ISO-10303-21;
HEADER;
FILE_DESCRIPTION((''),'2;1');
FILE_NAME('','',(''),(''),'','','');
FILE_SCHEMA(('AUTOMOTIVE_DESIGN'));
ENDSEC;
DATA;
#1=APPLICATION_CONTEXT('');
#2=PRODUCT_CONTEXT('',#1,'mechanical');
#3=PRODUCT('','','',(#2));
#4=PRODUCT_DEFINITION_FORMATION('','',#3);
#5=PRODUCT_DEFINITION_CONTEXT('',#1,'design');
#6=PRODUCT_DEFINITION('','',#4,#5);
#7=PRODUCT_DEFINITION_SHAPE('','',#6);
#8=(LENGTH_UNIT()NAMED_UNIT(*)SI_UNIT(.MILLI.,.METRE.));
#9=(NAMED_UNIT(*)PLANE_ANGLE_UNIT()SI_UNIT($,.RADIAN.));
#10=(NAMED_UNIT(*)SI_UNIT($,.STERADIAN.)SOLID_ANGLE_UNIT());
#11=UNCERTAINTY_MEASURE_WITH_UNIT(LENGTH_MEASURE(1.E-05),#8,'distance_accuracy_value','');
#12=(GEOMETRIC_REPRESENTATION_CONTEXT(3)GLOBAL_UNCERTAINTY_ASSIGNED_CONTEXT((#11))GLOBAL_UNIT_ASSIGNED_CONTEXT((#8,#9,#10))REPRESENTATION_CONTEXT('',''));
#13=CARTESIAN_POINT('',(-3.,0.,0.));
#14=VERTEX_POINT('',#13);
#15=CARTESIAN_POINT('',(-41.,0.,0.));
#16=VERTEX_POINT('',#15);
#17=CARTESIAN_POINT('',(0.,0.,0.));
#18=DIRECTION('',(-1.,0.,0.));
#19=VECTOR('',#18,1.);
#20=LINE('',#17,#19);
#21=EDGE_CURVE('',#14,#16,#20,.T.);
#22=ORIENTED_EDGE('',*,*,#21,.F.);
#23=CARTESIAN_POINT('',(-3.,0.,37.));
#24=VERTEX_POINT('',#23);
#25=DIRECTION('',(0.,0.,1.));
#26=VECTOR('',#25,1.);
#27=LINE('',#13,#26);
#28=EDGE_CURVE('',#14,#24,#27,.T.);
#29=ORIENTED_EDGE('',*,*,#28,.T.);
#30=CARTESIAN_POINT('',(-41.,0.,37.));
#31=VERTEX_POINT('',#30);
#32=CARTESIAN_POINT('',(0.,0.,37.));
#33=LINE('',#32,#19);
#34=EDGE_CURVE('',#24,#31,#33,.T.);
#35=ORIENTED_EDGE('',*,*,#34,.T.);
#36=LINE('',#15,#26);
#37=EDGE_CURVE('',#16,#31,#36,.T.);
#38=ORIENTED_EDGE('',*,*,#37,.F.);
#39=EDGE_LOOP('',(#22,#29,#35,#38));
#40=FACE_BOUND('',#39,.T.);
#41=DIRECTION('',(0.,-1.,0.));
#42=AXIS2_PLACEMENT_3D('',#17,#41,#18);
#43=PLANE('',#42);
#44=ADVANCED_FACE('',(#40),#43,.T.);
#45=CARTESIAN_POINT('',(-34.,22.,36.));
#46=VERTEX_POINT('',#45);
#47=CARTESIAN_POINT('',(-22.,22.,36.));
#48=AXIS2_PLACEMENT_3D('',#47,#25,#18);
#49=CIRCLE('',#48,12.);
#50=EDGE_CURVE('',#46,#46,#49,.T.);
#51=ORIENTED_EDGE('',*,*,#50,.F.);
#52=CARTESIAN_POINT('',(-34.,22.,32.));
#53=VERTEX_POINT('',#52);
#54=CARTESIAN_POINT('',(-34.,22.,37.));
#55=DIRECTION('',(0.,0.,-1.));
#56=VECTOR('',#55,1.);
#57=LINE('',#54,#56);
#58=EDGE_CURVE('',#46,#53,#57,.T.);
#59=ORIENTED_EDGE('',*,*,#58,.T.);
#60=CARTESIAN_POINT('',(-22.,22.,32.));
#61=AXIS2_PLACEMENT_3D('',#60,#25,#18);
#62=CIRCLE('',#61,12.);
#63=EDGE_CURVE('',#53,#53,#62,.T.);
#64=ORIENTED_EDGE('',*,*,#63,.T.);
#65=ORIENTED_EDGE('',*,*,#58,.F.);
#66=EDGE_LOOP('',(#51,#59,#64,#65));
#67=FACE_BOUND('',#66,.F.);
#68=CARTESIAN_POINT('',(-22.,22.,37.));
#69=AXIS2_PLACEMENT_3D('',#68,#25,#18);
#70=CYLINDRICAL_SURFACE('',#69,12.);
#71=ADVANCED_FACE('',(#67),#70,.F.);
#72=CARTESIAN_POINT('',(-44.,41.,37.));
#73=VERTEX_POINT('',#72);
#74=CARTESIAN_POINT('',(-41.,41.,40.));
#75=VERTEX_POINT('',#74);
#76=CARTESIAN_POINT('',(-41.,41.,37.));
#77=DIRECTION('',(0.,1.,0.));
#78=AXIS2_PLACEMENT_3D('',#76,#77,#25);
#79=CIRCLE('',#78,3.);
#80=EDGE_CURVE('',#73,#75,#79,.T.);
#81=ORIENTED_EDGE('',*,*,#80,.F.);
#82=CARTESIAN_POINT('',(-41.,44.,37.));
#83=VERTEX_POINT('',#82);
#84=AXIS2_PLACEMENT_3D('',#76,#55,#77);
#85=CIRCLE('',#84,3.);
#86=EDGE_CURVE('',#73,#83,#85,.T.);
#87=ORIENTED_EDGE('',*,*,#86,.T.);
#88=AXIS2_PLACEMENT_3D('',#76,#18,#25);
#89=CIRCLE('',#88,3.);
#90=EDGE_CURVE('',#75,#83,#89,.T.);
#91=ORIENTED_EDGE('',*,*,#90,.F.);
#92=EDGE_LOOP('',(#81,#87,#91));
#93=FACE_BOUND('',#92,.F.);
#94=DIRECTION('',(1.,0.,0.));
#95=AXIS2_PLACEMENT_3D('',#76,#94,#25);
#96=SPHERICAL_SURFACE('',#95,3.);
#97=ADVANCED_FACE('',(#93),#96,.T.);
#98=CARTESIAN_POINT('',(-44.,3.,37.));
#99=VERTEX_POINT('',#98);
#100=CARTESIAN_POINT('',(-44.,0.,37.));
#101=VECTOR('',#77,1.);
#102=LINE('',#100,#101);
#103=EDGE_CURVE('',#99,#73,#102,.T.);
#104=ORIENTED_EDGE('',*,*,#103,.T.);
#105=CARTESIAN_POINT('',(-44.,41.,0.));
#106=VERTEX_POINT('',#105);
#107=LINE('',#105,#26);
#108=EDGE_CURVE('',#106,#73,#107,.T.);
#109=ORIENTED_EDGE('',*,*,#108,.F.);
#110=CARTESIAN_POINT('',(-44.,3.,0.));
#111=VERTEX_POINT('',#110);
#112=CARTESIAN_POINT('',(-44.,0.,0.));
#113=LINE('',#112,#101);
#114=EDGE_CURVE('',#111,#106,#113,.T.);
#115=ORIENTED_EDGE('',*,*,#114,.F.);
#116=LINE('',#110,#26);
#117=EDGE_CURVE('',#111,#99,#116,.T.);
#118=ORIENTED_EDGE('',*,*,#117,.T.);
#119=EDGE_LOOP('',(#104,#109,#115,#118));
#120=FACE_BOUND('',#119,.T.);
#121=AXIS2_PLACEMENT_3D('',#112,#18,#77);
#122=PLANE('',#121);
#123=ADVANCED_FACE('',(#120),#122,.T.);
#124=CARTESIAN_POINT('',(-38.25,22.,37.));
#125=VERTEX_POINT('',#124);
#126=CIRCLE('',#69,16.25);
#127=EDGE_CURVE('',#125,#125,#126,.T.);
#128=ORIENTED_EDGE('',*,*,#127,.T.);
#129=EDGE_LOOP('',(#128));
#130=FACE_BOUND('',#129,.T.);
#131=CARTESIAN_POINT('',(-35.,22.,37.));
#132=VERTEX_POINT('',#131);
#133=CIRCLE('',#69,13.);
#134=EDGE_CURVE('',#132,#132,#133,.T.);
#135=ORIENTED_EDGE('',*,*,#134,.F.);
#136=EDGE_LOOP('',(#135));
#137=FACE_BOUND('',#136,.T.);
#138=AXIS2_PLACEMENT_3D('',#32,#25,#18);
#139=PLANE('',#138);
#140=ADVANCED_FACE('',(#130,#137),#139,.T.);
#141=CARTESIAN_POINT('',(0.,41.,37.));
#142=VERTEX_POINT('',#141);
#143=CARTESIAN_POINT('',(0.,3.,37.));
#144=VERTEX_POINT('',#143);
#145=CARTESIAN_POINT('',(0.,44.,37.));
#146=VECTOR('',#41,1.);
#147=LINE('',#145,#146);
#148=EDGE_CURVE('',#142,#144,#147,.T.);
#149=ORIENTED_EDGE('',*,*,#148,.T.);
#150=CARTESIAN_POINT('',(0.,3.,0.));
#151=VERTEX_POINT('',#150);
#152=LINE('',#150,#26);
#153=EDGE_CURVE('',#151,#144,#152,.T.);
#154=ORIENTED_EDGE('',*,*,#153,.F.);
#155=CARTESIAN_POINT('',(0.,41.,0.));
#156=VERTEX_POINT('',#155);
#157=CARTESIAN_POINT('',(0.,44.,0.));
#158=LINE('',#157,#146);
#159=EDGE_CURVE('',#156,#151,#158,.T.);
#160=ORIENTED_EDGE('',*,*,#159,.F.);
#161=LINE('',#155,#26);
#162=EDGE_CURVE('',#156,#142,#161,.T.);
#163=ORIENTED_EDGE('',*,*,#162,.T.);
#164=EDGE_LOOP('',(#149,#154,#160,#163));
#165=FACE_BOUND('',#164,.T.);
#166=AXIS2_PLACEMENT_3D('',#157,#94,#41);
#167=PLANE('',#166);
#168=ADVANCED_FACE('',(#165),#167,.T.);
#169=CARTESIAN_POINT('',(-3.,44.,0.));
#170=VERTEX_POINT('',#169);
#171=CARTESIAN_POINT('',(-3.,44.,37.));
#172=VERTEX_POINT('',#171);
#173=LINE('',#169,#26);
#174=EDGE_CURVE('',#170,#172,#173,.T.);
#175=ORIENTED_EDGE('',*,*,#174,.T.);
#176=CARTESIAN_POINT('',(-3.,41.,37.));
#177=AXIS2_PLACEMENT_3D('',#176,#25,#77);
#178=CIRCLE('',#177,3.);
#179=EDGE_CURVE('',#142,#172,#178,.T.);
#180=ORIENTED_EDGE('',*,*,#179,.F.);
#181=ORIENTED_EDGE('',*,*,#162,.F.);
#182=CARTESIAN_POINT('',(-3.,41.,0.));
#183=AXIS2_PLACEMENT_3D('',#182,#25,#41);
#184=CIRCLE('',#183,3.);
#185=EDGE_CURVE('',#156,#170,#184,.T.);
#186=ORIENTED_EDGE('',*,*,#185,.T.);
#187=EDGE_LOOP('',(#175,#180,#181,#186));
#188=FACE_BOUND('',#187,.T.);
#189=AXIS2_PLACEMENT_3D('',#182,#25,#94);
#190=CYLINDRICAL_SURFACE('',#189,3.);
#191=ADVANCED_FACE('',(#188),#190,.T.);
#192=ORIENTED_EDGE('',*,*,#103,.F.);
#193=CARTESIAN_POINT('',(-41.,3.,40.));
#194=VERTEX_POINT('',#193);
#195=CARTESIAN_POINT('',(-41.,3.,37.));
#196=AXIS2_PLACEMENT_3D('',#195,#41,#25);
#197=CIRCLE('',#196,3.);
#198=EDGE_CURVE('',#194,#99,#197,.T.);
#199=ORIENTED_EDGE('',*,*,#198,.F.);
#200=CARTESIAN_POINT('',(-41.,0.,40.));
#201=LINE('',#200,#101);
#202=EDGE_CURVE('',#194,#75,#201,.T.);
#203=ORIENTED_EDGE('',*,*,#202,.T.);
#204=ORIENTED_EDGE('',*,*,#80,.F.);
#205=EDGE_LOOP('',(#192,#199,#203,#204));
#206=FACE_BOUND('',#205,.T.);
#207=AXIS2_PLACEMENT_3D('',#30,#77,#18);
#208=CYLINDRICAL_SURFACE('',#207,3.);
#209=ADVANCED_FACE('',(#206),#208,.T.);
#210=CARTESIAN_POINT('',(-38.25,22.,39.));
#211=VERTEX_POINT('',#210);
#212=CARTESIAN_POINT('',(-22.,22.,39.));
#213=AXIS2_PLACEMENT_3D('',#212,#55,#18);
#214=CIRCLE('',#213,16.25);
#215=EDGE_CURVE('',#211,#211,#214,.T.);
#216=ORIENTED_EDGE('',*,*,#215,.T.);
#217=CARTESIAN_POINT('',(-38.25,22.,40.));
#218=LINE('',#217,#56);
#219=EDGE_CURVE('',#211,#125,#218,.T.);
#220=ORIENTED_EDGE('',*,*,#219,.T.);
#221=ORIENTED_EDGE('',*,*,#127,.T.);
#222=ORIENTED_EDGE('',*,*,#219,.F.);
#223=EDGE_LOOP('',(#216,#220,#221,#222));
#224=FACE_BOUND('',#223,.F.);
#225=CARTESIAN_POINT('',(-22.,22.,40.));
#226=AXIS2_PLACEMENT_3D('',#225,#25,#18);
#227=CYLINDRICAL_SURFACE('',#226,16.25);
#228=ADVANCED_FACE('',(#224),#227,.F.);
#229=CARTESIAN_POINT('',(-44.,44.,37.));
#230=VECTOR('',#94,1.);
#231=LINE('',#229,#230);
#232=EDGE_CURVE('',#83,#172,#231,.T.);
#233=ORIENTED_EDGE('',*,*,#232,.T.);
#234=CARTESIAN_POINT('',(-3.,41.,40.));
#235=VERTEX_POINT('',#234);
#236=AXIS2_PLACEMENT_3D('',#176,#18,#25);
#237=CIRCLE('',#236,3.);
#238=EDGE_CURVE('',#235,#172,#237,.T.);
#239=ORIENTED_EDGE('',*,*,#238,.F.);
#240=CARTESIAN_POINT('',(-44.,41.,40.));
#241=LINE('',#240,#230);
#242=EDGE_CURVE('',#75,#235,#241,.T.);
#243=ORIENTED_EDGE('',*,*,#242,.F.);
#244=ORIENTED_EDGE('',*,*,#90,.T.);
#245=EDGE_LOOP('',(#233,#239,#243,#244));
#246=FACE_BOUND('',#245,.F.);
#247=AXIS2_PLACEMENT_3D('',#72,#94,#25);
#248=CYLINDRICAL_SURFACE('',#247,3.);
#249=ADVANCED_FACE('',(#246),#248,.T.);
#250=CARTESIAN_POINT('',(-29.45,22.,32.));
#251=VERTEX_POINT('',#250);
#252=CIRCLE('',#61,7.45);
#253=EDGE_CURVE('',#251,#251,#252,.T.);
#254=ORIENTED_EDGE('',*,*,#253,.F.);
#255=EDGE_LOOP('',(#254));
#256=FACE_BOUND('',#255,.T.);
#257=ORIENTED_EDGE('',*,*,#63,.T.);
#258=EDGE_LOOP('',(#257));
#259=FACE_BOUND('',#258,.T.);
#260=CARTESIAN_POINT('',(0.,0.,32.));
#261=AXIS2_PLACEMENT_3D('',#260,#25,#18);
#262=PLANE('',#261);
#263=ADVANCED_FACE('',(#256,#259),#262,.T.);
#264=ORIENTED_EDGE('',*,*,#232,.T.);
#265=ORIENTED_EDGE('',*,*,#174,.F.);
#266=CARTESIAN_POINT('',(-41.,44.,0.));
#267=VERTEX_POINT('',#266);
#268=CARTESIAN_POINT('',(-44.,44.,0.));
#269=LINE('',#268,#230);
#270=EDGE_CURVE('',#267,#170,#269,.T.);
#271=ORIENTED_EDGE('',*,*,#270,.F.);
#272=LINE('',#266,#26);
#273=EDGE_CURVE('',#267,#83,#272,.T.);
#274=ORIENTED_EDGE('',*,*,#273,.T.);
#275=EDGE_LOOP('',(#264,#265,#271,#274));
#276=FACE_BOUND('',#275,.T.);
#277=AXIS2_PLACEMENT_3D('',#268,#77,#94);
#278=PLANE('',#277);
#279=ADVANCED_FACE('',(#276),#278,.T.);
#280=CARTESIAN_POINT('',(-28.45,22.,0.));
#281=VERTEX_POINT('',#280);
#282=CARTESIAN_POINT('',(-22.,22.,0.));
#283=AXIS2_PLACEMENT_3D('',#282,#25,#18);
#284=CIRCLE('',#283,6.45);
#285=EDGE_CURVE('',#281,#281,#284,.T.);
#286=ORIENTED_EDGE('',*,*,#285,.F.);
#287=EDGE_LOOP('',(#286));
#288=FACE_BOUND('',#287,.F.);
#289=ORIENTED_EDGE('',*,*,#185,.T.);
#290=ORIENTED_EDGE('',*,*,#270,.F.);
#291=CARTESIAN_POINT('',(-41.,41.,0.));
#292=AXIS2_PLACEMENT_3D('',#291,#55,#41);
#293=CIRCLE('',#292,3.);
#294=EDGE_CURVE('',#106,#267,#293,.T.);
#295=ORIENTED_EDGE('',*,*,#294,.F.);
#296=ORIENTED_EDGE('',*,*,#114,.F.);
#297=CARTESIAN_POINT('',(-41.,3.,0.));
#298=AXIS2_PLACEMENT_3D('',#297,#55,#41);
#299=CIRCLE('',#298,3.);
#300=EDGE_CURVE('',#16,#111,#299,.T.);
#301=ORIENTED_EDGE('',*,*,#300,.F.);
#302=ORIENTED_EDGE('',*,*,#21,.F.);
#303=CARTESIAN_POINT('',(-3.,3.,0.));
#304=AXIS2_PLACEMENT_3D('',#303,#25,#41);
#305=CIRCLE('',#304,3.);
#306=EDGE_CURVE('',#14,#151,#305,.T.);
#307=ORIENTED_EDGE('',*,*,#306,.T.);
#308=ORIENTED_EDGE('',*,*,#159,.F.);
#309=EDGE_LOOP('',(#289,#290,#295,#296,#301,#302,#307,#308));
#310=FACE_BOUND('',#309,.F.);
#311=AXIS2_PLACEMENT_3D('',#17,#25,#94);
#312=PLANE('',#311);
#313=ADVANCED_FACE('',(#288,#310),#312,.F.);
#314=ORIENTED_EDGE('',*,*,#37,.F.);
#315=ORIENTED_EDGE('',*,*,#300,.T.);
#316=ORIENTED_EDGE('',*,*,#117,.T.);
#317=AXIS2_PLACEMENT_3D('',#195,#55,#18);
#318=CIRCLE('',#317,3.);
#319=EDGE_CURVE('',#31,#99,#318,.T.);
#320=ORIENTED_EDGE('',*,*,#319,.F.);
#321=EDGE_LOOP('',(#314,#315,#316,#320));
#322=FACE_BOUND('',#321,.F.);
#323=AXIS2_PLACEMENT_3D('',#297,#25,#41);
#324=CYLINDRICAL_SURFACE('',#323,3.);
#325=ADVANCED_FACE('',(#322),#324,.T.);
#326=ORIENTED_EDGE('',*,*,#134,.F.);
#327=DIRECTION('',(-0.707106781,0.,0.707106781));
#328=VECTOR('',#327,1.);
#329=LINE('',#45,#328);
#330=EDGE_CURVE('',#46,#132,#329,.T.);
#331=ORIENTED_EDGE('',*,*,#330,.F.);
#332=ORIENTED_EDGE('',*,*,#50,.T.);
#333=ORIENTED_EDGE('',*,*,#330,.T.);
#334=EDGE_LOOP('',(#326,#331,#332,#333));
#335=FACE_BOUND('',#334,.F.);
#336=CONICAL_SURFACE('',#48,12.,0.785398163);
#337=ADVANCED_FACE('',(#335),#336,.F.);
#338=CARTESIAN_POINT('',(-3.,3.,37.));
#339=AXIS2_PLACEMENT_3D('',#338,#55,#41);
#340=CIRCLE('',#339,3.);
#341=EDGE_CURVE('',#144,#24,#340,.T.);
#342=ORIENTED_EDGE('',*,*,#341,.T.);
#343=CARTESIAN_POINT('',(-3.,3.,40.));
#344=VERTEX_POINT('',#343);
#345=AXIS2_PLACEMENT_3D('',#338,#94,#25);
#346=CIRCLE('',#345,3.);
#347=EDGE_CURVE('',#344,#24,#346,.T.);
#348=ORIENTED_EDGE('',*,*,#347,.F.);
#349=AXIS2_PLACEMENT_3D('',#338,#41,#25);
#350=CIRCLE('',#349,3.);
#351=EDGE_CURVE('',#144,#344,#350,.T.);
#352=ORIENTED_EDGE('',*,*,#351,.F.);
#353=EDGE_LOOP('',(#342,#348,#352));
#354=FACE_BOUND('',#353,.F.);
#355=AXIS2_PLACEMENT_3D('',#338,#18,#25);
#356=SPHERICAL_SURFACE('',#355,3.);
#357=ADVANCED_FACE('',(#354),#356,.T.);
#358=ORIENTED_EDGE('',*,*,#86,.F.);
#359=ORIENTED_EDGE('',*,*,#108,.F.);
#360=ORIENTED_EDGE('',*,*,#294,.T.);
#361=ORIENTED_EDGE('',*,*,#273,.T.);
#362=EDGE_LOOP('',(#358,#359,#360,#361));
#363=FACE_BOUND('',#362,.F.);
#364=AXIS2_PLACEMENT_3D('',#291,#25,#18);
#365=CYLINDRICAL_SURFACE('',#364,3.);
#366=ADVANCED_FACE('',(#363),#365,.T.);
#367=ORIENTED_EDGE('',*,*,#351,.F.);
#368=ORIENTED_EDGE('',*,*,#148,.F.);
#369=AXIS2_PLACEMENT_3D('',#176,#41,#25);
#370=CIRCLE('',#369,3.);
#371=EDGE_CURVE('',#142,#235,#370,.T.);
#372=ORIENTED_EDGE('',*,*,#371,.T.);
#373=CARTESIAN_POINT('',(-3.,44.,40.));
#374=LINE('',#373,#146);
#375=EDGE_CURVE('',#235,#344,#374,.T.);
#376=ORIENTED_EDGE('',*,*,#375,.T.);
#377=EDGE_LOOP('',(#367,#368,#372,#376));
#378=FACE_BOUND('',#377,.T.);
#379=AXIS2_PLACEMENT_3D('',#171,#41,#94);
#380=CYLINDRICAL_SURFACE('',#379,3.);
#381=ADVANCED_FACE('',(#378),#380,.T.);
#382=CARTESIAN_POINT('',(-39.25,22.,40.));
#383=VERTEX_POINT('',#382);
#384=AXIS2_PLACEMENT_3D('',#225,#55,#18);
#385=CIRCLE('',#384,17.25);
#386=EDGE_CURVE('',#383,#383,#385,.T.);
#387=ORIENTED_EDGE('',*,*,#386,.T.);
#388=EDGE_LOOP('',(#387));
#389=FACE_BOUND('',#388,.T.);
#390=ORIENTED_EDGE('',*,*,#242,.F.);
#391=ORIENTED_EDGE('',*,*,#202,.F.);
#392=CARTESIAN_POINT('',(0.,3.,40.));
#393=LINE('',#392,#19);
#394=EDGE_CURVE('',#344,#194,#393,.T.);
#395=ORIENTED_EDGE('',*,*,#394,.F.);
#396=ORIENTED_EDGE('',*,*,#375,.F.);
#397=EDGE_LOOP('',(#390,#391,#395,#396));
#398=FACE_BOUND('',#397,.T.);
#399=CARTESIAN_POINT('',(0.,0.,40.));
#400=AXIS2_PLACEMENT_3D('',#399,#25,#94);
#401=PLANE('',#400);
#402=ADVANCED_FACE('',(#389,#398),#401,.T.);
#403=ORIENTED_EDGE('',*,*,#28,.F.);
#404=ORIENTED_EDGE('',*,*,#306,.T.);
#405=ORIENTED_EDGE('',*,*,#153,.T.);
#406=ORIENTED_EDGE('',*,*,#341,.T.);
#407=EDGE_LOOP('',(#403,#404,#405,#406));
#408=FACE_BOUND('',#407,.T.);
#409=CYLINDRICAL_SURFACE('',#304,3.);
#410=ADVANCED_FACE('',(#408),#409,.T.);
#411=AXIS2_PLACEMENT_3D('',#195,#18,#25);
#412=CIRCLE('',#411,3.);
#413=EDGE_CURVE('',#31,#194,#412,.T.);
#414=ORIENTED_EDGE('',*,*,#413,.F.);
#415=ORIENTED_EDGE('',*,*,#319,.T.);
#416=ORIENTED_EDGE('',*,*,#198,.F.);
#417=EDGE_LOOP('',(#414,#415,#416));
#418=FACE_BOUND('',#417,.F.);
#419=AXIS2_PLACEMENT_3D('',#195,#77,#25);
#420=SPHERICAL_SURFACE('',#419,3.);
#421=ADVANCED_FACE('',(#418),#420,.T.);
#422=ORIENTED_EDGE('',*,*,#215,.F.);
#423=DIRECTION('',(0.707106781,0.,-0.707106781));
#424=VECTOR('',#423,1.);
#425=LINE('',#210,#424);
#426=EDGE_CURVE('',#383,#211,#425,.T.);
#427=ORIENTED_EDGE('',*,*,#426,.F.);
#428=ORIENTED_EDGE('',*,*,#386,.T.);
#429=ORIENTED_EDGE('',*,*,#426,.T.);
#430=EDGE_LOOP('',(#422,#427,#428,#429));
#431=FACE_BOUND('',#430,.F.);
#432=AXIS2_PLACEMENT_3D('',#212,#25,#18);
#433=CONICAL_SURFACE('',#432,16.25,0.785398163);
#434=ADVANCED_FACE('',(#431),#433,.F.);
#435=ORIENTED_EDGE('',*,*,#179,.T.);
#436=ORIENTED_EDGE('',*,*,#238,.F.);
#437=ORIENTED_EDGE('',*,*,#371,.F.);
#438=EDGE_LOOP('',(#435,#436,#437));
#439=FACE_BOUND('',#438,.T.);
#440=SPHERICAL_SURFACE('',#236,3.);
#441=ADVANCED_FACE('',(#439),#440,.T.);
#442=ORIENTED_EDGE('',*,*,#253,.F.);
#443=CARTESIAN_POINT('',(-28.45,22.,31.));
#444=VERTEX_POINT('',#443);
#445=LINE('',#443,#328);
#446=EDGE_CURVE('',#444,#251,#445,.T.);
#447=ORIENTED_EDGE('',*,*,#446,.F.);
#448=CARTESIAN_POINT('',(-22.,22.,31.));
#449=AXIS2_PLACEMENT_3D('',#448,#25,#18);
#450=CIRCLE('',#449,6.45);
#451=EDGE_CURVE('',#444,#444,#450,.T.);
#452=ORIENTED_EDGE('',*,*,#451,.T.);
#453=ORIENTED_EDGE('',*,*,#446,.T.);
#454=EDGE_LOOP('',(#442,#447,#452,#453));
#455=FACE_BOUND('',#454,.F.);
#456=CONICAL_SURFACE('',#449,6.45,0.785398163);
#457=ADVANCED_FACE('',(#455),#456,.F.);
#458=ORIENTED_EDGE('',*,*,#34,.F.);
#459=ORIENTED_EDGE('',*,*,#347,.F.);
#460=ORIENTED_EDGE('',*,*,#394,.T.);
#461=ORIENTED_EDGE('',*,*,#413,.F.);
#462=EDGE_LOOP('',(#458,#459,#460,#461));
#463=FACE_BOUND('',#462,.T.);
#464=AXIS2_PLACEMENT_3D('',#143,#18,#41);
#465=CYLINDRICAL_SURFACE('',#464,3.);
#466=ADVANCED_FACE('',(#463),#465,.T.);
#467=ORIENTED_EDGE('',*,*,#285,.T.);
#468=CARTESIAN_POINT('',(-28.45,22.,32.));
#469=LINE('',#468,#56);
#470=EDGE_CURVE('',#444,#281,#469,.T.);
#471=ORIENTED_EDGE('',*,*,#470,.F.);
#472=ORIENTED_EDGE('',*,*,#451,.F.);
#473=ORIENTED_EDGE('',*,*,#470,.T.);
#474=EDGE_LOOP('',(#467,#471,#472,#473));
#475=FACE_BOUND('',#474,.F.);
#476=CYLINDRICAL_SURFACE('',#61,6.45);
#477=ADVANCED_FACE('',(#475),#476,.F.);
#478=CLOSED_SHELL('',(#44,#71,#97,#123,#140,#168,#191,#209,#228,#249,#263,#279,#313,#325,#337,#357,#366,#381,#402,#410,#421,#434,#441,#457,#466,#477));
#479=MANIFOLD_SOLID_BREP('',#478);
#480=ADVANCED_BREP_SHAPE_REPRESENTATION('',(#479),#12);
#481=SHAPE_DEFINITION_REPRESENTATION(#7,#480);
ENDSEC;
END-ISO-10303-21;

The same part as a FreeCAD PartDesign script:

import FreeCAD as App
import Part
import Sketcher
from FreeCAD import Vector
Q = App.Units.Quantity


def edges_at(feature, points):
    """Names of the edges that pass closest to the given points."""
    edges = feature.Shape.Edges
    near = lambda p: min(range(len(edges)), key=lambda i: edges[i].distToShape(Part.Vertex(*p))[0])
    return sorted({f"Edge{near(p) + 1}" for p in points})

doc = App.newDocument("Part")
body = doc.addObject("PartDesign::Body", "Body")

sketch1 = body.newObject("Sketcher::SketchObject", "Sketch")
sketch1.AttachmentSupport = (doc.getObject("XY_Plane"), [""])
sketch1.MapMode = "FlatFace"
sketch1.addGeometry(Part.LineSegment(Vector(-44, 0, 0), Vector(0, 0, 0)), False)
sketch1.addGeometry(Part.LineSegment(Vector(0, 0, 0), Vector(0, 44, 0)), False)
sketch1.addGeometry(Part.LineSegment(Vector(0, 44, 0), Vector(-44, 44, 0)), False)
sketch1.addGeometry(Part.LineSegment(Vector(-44, 44, 0), Vector(-44, 0, 0)), False)
sketch1.addConstraint(Sketcher.Constraint("Coincident", 0, 2, 1, 1))
sketch1.addConstraint(Sketcher.Constraint("Coincident", 1, 2, 2, 1))
sketch1.addConstraint(Sketcher.Constraint("Coincident", 2, 2, 3, 1))
sketch1.addConstraint(Sketcher.Constraint("Coincident", 3, 2, 0, 1))
sketch1.addConstraint(Sketcher.Constraint("Horizontal", 0))
sketch1.addConstraint(Sketcher.Constraint("Vertical", 1))
sketch1.addConstraint(Sketcher.Constraint("Horizontal", 2))
sketch1.addConstraint(Sketcher.Constraint("Vertical", 3))
sketch1.addConstraint(Sketcher.Constraint("Coincident", 0, 2, -1, 1))
sketch1.addConstraint(Sketcher.Constraint("Equal", 2, 1))
sketch1.addConstraint(Sketcher.Constraint("DistanceX", 0, 1, 0, 2, Q("44 mm")))
pad1 = body.newObject("PartDesign::Pad", "Pad")
pad1.Profile = sketch1
pad1.Length = 40

sketch2 = body.newObject("Sketcher::SketchObject", "Sketch001")
sketch2.AttachmentSupport = (doc.getObject("XY_Plane"), [""])
sketch2.MapMode = "FlatFace"
sketch2.AttachmentOffset = App.Placement(Vector(0, 0, 40), App.Rotation())
sketch2.addGeometry(Part.Circle(Vector(-22, 22, 0), Vector(0, 0, 1), 16), False)
sketch2.addConstraint(Sketcher.Constraint("Diameter", 0, Q("32.5 mm")))
sketch2.addConstraint(Sketcher.Constraint("DistanceX", 0, 3, -1, 1, Q("22 mm")))
sketch2.addConstraint(Sketcher.Constraint("DistanceY", -1, 1, 0, 3, Q("22 mm")))
pocket1 = body.newObject("PartDesign::Pocket", "Pocket")
pocket1.Profile = sketch2
pocket1.Length = 3

sketch3 = body.newObject("Sketcher::SketchObject", "Sketch002")
sketch3.AttachmentSupport = (doc.getObject("XY_Plane"), [""])
sketch3.MapMode = "FlatFace"
sketch3.AttachmentOffset = App.Placement(Vector(0, 0, 37), App.Rotation())
sketch3.addGeometry(Part.Circle(Vector(-22, 22, 0), Vector(0, 0, 1), 12), False)
sketch3.addConstraint(Sketcher.Constraint("Diameter", 0, Q("24 mm")))
sketch3.addConstraint(Sketcher.Constraint("DistanceX", 0, 3, -1, 1, Q("22 mm")))
sketch3.addConstraint(Sketcher.Constraint("DistanceY", -1, 1, 0, 3, Q("22 mm")))
pocket2 = body.newObject("PartDesign::Pocket", "Pocket001")
pocket2.Profile = sketch3
pocket2.Length = 5

sketch4 = body.newObject("Sketcher::SketchObject", "Sketch003")
sketch4.AttachmentSupport = (doc.getObject("XY_Plane"), [""])
sketch4.MapMode = "FlatFace"
sketch4.AttachmentOffset = App.Placement(Vector(0, 0, 32), App.Rotation())
sketch4.addGeometry(Part.Circle(Vector(-22, 22, 0), Vector(0, 0, 1), 6), False)
sketch4.addConstraint(Sketcher.Constraint("Diameter", 0, Q("12.9 mm")))
sketch4.addConstraint(Sketcher.Constraint("DistanceX", 0, 3, -1, 1, Q("22 mm")))
sketch4.addConstraint(Sketcher.Constraint("DistanceY", -1, 1, 0, 3, Q("22 mm")))
pocket3 = body.newObject("PartDesign::Pocket", "Pocket002")
pocket3.Profile = sketch4
pocket3.Length = 50
doc.recompute()

fillet = body.newObject("PartDesign::Fillet", "Fillet")
fillet.Base = (pocket3, edges_at(pocket3, [
    (-22, 44, 40),
    (-44, 22, 40),
    (-22, 0, 40),
    (0, 22, 40),
    (0, 0, 20),
    (-44, 0, 20),
    (0, 44, 20),
    (-44, 44, 20),
]))
fillet.Radius = 3
doc.recompute()

chamfer = body.newObject("PartDesign::Chamfer", "Chamfer")
chamfer.Base = (fillet, edges_at(fillet, [(-10.812, 17.661, 37), (-15.986, 19.668, 32), (-6.85, 16.124, 40)]))
chamfer.Size = 1

doc.recompute()
